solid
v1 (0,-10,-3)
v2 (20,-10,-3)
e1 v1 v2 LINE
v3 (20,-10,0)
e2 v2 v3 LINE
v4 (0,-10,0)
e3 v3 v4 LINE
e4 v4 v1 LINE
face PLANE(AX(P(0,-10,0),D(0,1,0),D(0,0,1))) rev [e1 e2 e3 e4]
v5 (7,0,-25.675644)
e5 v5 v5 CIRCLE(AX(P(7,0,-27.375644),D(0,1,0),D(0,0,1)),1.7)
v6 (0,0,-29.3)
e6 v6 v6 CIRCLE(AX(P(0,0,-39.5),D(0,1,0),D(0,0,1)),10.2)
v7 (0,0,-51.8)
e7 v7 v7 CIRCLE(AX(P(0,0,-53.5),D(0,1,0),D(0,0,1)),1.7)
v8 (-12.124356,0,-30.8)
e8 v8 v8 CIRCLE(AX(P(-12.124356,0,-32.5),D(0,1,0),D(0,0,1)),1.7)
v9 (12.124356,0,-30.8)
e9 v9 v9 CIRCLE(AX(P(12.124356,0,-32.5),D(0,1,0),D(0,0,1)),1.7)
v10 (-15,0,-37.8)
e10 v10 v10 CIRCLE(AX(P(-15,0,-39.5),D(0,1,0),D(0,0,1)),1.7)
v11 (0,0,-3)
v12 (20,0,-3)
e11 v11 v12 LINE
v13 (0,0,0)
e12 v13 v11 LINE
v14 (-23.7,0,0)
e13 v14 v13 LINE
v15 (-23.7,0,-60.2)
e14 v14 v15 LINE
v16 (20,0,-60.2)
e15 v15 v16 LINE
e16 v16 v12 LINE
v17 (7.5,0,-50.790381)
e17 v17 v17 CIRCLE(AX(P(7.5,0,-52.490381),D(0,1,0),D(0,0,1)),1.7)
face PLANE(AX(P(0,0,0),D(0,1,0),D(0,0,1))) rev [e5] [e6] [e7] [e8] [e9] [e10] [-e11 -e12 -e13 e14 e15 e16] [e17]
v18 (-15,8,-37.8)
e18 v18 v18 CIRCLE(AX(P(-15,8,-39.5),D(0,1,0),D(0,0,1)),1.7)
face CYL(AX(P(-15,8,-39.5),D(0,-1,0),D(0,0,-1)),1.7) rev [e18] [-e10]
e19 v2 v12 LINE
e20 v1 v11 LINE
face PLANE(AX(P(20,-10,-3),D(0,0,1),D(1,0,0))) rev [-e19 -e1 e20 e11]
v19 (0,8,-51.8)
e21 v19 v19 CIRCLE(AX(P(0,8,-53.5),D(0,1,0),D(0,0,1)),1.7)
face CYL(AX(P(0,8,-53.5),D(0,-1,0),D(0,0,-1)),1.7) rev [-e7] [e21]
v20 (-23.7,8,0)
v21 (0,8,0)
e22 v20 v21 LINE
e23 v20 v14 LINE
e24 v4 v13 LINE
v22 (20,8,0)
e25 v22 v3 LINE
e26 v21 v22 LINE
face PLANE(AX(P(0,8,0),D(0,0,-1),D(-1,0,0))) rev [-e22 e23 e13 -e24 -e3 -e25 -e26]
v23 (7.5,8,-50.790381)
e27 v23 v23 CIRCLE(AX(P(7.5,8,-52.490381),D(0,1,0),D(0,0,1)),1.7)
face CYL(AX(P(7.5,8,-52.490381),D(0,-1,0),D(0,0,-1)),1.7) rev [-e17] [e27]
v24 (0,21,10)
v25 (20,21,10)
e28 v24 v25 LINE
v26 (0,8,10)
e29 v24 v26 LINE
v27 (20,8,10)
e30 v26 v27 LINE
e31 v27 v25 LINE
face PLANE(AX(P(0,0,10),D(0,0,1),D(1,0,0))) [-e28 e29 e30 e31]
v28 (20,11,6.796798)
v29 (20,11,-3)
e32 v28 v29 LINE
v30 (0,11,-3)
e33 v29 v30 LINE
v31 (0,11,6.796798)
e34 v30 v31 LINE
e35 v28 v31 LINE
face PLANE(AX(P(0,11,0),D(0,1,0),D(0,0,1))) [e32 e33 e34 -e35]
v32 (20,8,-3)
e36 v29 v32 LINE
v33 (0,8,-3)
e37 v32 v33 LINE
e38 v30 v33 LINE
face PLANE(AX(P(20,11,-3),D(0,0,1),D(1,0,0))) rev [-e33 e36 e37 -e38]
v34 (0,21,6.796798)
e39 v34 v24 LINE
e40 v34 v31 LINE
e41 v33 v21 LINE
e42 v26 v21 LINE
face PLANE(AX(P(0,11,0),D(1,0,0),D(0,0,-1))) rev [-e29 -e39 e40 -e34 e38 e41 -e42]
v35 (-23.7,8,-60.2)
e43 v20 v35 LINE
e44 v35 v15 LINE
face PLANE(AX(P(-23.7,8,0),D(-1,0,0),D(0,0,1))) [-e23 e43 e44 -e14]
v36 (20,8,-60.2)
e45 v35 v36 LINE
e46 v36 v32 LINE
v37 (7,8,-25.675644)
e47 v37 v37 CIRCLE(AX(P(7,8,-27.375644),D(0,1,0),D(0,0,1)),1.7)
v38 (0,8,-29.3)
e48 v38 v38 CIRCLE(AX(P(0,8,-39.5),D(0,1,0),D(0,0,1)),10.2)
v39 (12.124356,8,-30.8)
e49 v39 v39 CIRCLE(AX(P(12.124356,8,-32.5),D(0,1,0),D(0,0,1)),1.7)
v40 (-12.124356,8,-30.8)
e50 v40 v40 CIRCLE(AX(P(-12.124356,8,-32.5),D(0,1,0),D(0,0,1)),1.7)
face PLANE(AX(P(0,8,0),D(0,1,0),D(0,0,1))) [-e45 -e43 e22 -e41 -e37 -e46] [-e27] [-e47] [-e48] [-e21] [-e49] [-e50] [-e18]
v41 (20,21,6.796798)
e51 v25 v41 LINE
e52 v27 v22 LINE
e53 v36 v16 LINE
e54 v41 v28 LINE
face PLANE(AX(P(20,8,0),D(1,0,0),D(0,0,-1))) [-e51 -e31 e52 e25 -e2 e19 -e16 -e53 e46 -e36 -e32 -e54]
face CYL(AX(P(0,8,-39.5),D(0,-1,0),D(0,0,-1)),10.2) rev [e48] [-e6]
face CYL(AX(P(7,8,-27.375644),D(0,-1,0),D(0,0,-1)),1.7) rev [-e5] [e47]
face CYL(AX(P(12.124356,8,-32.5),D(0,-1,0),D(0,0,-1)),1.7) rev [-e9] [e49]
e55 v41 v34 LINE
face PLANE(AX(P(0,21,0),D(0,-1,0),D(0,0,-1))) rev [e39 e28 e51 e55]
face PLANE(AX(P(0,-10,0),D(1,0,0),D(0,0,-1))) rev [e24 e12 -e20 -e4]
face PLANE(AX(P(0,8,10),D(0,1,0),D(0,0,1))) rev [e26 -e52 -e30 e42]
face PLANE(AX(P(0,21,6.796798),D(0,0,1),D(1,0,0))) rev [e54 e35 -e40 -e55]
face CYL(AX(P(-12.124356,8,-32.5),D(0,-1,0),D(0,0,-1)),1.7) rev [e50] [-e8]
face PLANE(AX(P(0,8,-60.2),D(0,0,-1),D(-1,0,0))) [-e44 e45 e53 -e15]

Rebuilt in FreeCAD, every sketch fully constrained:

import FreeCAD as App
import Part
import Sketcher


def add_polygon(sketch, points):
    """Adds a closed chain of lines whose ends are joined by coincident constraints."""
    first, n = sketch.GeometryCount, len(points)
    for a, b in zip(points, points[1:] + points[:1]):
        sketch.addGeometry(Part.LineSegment(App.Vector(*a, 0), App.Vector(*b, 0)), False)
    for i in range(n):
        sketch.addConstraint(Sketcher.Constraint("Coincident", first + i, 2, first + (i + 1) % n, 1))

doc = App.newDocument("Part")
body = doc.addObject("PartDesign::Body", "Body")

# Sketch on XZ plane
sketch1 = body.newObject("Sketcher::SketchObject", "Sketch")
sketch1.AttachmentSupport = (doc.getObject("XZ_Plane"), [""])
sketch1.MapMode = "FlatFace"
add_polygon(sketch1, [(-23.7, -60.2), (-23.7, 0), (20, 0), (20, -60.2)])  # lines 0-3
sketch1.addGeometry(Part.Circle(App.Vector(-12.1, -32.5, 0), App.Vector(0, 0, 1), 1.7), False)  # 4
sketch1.addGeometry(Part.Circle(App.Vector(-15, -39.5, 0), App.Vector(0, 0, 1), 1.7), False)  # 5
sketch1.addGeometry(Part.Circle(App.Vector(7, -27.4, 0), App.Vector(0, 0, 1), 1.7), False)  # 6
sketch1.addGeometry(Part.Circle(App.Vector(12.1, -32.5, 0), App.Vector(0, 0, 1), 1.7), False)  # 7
sketch1.addGeometry(Part.Circle(App.Vector(0, -39.5, 0), App.Vector(0, 0, 1), 10.2), False)  # 8
sketch1.addGeometry(Part.Circle(App.Vector(0, -53.5, 0), App.Vector(0, 0, 1), 1.7), False)  # 9
sketch1.addGeometry(Part.Circle(App.Vector(7.5, -52.5, 0), App.Vector(0, 0, 1), 1.7), False)  # 10
sketch1.addConstraint(Sketcher.Constraint("Vertical", 0))
sketch1.addConstraint(Sketcher.Constraint("Horizontal", 1))
sketch1.addConstraint(Sketcher.Constraint("Vertical", 2))
sketch1.addConstraint(Sketcher.Constraint("Horizontal", 3))
sketch1.addConstraint(Sketcher.Constraint("Equal", 4, 5))
sketch1.addConstraint(Sketcher.Constraint("Equal", 5, 6))
sketch1.addConstraint(Sketcher.Constraint("Equal", 6, 7))
sketch1.addConstraint(Sketcher.Constraint("Equal", 7, 9))
sketch1.addConstraint(Sketcher.Constraint("Equal", 9, 10))
sketch1.addConstraint(Sketcher.Constraint("Symmetric", 4, 3, 7, 3, -2))
sketch1.addConstraint(Sketcher.Constraint("PointOnObject", 8, 3, -2))
sketch1.addConstraint(Sketcher.Constraint("PointOnObject", 9, 3, -2))
sketch1.addConstraint(Sketcher.Constraint("PointOnObject", 0, 2, -1))
sketch1.addConstraint(Sketcher.Constraint("Horizontal", 5, 3, 8, 3))
sketch1.addConstraint(Sketcher.Constraint("Diameter", 4, 3.4))
sketch1.addConstraint(Sketcher.Constraint("Diameter", 8, 20.4))
sketch1.addConstraint(Sketcher.Constraint("DistanceX", 1, 1, 1, 2, 43.7))
sketch1.addConstraint(Sketcher.Constraint("DistanceY", 0, 1, 0, 2, 60.2))
sketch1.addConstraint(Sketcher.Constraint("DistanceX", 5, 3, -1, 1, 15.0))
sketch1.addConstraint(Sketcher.Constraint("DistanceX", -1, 1, 6, 3, 7.0))
sketch1.addConstraint(Sketcher.Constraint("DistanceX", -1, 1, 1, 2, 20.0))
sketch1.addConstraint(Sketcher.Constraint("DistanceY", 5, 3, 4, 3, 7.0))
sketch1.addConstraint(Sketcher.Constraint("DistanceY", 9, 3, 8, 3, 14.0))
sketch1.addConstraint(Sketcher.Constraint("DistanceY", 4, 3, -1, 1, 32.5))
sketch1.addConstraint(Sketcher.Constraint("DistanceX", -1, 1, 10, 3, 7.5))
sketch1.addConstraint(Sketcher.Constraint("DistanceY", 10, 3, -1, 1, 52.490381))
sketch1.addConstraint(Sketcher.Constraint("DistanceX", 4, 3, 7, 3, 24.248711))
sketch1.addConstraint(Sketcher.Constraint("DistanceY", 6, 3, -1, 1, 27.375644))
pad1 = body.newObject("PartDesign::Pad", "Pad")
pad1.Profile = sketch1
pad1.Length = 8
pad1.Reversed = True

# Sketch on XZ plane
sketch2 = body.newObject("Sketcher::SketchObject", "Sketch001")
sketch2.AttachmentSupport = (doc.getObject("XZ_Plane"), [""])
sketch2.MapMode = "FlatFace"
add_polygon(sketch2, [(0, 0), (0, -3), (20, -3), (20, 0)])  # lines 0-3
sketch2.addConstraint(Sketcher.Constraint("Vertical", 0))
sketch2.addConstraint(Sketcher.Constraint("Horizontal", 1))
sketch2.addConstraint(Sketcher.Constraint("Vertical", 2))
sketch2.addConstraint(Sketcher.Constraint("Horizontal", 3))
sketch2.addConstraint(Sketcher.Constraint("Coincident", 3, 2, -1, 1))
sketch2.addConstraint(Sketcher.Constraint("DistanceX", 1, 1, 1, 2, 20.0))
sketch2.addConstraint(Sketcher.Constraint("DistanceY", 0, 2, 0, 1, 3.0))
pad2 = body.newObject("PartDesign::Pad", "Pad001")
pad2.Profile = sketch2
pad2.Length = 10

# Sketch on XZ plane
sketch3 = body.newObject("Sketcher::SketchObject", "Sketch002")
sketch3.AttachmentSupport = (doc.getObject("XZ_Plane"), [""])
sketch3.MapMode = "FlatFace"
sketch3.AttachmentOffset = App.Placement(App.Vector(0, 0, -8), App.Rotation())
add_polygon(sketch3, [(0, -3), (0, 0), (20, 0), (20, -3)])  # lines 0-3
sketch3.addConstraint(Sketcher.Constraint("Vertical", 0))
sketch3.addConstraint(Sketcher.Constraint("Horizontal", 1))
sketch3.addConstraint(Sketcher.Constraint("Vertical", 2))
sketch3.addConstraint(Sketcher.Constraint("Horizontal", 3))
sketch3.addConstraint(Sketcher.Constraint("Coincident", 0, 2, -1, 1))
sketch3.addConstraint(Sketcher.Constraint("DistanceX", 1, 1, 1, 2, 20.0))
sketch3.addConstraint(Sketcher.Constraint("DistanceY", 0, 1, 0, 2, 3.0))
pad3 = body.newObject("PartDesign::Pad", "Pad002")
pad3.Profile = sketch3
pad3.Length = 3
pad3.Reversed = True

# Sketch on XY plane
sketch4 = body.newObject("Sketcher::SketchObject", "Sketch003")
sketch4.AttachmentSupport = (doc.getObject("XY_Plane"), [""])
sketch4.MapMode = "FlatFace"
add_polygon(sketch4, [(0, 11), (0, 8), (20, 8), (20, 11)])  # lines 0-3
sketch4.addConstraint(Sketcher.Constraint("Vertical", 0))
sketch4.addConstraint(Sketcher.Constraint("Horizontal", 1))
sketch4.addConstraint(Sketcher.Constraint("Vertical", 2))
sketch4.addConstraint(Sketcher.Constraint("Horizontal", 3))
sketch4.addConstraint(Sketcher.Constraint("PointOnObject", 0, 2, -2))
sketch4.addConstraint(Sketcher.Constraint("DistanceX", 1, 1, 1, 2, 20.0))
sketch4.addConstraint(Sketcher.Constraint("DistanceY", 0, 2, 0, 1, 3.0))
sketch4.addConstraint(Sketcher.Constraint("DistanceY", -1, 1, 0, 2, 8.0))
pad4 = body.newObject("PartDesign::Pad", "Pad003")
pad4.Profile = sketch4
pad4.Length = 10

# Sketch on XZ plane
sketch5 = body.newObject("Sketcher::SketchObject", "Sketch004")
sketch5.AttachmentSupport = (doc.getObject("XZ_Plane"), [""])
sketch5.MapMode = "FlatFace"
sketch5.AttachmentOffset = App.Placement(App.Vector(0, 0, -11), App.Rotation())
add_polygon(sketch5, [(0, 6.8), (0, 10), (20, 10), (20, 6.8)])  # lines 0-3
sketch5.addConstraint(Sketcher.Constraint("Vertical", 0))
sketch5.addConstraint(Sketcher.Constraint("Horizontal", 1))
sketch5.addConstraint(Sketcher.Constraint("Vertical", 2))
sketch5.addConstraint(Sketcher.Constraint("Horizontal", 3))
sketch5.addConstraint(Sketcher.Constraint("PointOnObject", 0, 2, -2))
sketch5.addConstraint(Sketcher.Constraint("DistanceX", 1, 1, 1, 2, 20.0))
sketch5.addConstraint(Sketcher.Constraint("DistanceY", -1, 1, 0, 2, 10.0))
sketch5.addConstraint(Sketcher.Constraint("DistanceY", 0, 1, 0, 2, 3.203202))
pad5 = body.newObject("PartDesign::Pad", "Pad004")
pad5.Profile = sketch5
pad5.Length = 10
pad5.Reversed = True

doc.recompute()
